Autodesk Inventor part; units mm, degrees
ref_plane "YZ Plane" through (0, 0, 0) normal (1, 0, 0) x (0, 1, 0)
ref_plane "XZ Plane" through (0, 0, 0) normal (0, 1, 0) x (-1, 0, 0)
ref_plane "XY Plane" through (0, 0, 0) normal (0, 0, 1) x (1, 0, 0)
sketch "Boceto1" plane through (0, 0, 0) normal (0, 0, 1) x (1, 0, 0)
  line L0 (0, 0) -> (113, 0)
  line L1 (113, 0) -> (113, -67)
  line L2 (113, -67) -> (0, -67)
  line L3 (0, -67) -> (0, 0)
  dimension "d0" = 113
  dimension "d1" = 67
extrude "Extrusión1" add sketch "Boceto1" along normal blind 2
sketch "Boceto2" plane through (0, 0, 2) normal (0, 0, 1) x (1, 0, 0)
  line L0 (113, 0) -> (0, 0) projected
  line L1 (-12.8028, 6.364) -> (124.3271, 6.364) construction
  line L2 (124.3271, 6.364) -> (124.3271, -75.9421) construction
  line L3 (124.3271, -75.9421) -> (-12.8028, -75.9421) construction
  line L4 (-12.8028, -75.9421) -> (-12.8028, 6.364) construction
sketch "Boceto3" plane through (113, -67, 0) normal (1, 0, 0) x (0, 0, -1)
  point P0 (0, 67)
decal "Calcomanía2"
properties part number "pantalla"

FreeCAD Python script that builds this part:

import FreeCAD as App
import Part
import Sketcher
Q = App.Units.Quantity

doc = App.newDocument("Part")
body = doc.addObject("PartDesign::Body", "Body")

# Sketch on XY plane
sketch1 = body.newObject("Sketcher::SketchObject", "Sketch")
sketch1.AttachmentSupport = (doc.getObject("XY_Plane"), [""])
sketch1.MapMode = "FlatFace"
sketch1.addGeometry([
    Part.LineSegment(App.Vector(113, 0, 0), App.Vector(0, 0, 0)),
    Part.LineSegment(App.Vector(0, 0, 0), App.Vector(0, -67, 0)),
    Part.LineSegment(App.Vector(0, -67, 0), App.Vector(113, -67, 0)),
    Part.LineSegment(App.Vector(113, -67, 0), App.Vector(113, 0, 0)),
], False)
sketch1.addConstraint([
    Sketcher.Constraint("Coincident", 0, 2, 1, 1),
    Sketcher.Constraint("Coincident", 1, 2, 2, 1),
    Sketcher.Constraint("Coincident", 2, 2, 3, 1),
    Sketcher.Constraint("Coincident", 3, 2, 0, 1),
    Sketcher.Constraint("Horizontal", 0),
    Sketcher.Constraint("Vertical", 1),
    Sketcher.Constraint("Horizontal", 2),
    Sketcher.Constraint("Vertical", 3),
    Sketcher.Constraint("Coincident", 0, 2, -1, 1),
    Sketcher.Constraint("DistanceX", 0, 2, 0, 1, Q("113 mm")),
    Sketcher.Constraint("DistanceY", 1, 2, 1, 1, Q("67 mm")),
])
pad1 = body.newObject("PartDesign::Pad", "Pad")
pad1.Profile = sketch1
pad1.Length = 2

doc.recompute()
